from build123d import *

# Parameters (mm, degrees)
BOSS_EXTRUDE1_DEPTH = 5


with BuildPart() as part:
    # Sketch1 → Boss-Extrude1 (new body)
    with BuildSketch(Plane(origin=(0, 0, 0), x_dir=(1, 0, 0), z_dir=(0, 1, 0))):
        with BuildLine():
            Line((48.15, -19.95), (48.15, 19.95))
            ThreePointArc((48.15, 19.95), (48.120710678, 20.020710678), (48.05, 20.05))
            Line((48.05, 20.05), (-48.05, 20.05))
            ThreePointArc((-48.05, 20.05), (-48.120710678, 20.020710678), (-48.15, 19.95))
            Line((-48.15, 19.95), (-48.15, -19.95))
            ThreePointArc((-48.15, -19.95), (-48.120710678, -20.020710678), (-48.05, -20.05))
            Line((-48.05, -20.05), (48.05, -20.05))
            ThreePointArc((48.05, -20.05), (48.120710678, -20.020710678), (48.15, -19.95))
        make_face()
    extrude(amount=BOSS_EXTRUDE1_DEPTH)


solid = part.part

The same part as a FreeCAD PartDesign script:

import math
import FreeCAD as App
import Part
import Sketcher
Q = App.Units.Quantity

doc = App.newDocument("Part")
body = doc.addObject("PartDesign::Body", "Body")

# Sketch on XZ plane
sketch1 = body.newObject("Sketcher::SketchObject", "Sketch")
sketch1.AttachmentSupport = (doc.getObject("XZ_Plane"), [""])
sketch1.MapMode = "FlatFace"
sketch1.addGeometry(Part.LineSegment(App.Vector(48.15, 19.95, 0), App.Vector(48.15, -19.95, 0)), False)
sketch1.addGeometry(Part.ArcOfCircle(Part.Circle(App.Vector(48.05, -19.95, 0), App.Vector(0, 0, 1), 0.1), math.radians(-90), math.radians(0)), False)
sketch1.addGeometry(Part.LineSegment(App.Vector(48.05, -20.05, 0), App.Vector(-48.05, -20.05, 0)), False)
sketch1.addGeometry(Part.ArcOfCircle(Part.Circle(App.Vector(-48.05, -19.95, 0), App.Vector(0, 0, 1), 0.1), math.radians(180), math.radians(270)), False)
sketch1.addGeometry(Part.LineSegment(App.Vector(-48.15, -19.95, 0), App.Vector(-48.15, 19.95, 0)), False)
sketch1.addGeometry(Part.ArcOfCircle(Part.Circle(App.Vector(-48.05, 19.95, 0), App.Vector(0, 0, 1), 0.1), math.radians(90), math.radians(180)), False)
sketch1.addGeometry(Part.LineSegment(App.Vector(-48.05, 20.05, 0), App.Vector(48.05, 20.05, 0)), False)
sketch1.addGeometry(Part.ArcOfCircle(Part.Circle(App.Vector(48.05, 19.95, 0), App.Vector(0, 0, 1), 0.1), math.radians(0), math.radians(90)), False)
sketch1.addConstraint(Sketcher.Constraint("Tangent", 0, 2, 1, 2))
sketch1.addConstraint(Sketcher.Constraint("Tangent", 1, 1, 2, 1))
sketch1.addConstraint(Sketcher.Constraint("Tangent", 2, 2, 3, 2))
sketch1.addConstraint(Sketcher.Constraint("Tangent", 3, 1, 4, 1))
sketch1.addConstraint(Sketcher.Constraint("Tangent", 4, 2, 5, 2))
sketch1.addConstraint(Sketcher.Constraint("Tangent", 5, 1, 6, 1))
sketch1.addConstraint(Sketcher.Constraint("Tangent", 6, 2, 7, 2))
sketch1.addConstraint(Sketcher.Constraint("Tangent", 7, 1, 0, 1))
sketch1.addConstraint(Sketcher.Constraint("Vertical", 0))
sketch1.addConstraint(Sketcher.Constraint("Horizontal", 2))
sketch1.addConstraint(Sketcher.Constraint("Vertical", 4))
sketch1.addConstraint(Sketcher.Constraint("Horizontal", 6))
sketch1.addConstraint(Sketcher.Constraint("Equal", 1, 3))
sketch1.addConstraint(Sketcher.Constraint("Equal", 3, 5))
sketch1.addConstraint(Sketcher.Constraint("Equal", 5, 7))
sketch1.addConstraint(Sketcher.Constraint("Symmetric", 1, 3, 5, 3, -1, 1))
sketch1.addConstraint(Sketcher.Constraint("Radius", 1, Q("0.1 mm")))
sketch1.addConstraint(Sketcher.Constraint("DistanceX", 2, 2, 2, 1, Q("96.1 mm")))
sketch1.addConstraint(Sketcher.Constraint("DistanceY", 0, 2, 0, 1, Q("39.9 mm")))
pad1 = body.newObject("PartDesign::Pad", "Pad")
pad1.Profile = sketch1
pad1.Length = 5
pad1.Reversed = True

doc.recompute()
